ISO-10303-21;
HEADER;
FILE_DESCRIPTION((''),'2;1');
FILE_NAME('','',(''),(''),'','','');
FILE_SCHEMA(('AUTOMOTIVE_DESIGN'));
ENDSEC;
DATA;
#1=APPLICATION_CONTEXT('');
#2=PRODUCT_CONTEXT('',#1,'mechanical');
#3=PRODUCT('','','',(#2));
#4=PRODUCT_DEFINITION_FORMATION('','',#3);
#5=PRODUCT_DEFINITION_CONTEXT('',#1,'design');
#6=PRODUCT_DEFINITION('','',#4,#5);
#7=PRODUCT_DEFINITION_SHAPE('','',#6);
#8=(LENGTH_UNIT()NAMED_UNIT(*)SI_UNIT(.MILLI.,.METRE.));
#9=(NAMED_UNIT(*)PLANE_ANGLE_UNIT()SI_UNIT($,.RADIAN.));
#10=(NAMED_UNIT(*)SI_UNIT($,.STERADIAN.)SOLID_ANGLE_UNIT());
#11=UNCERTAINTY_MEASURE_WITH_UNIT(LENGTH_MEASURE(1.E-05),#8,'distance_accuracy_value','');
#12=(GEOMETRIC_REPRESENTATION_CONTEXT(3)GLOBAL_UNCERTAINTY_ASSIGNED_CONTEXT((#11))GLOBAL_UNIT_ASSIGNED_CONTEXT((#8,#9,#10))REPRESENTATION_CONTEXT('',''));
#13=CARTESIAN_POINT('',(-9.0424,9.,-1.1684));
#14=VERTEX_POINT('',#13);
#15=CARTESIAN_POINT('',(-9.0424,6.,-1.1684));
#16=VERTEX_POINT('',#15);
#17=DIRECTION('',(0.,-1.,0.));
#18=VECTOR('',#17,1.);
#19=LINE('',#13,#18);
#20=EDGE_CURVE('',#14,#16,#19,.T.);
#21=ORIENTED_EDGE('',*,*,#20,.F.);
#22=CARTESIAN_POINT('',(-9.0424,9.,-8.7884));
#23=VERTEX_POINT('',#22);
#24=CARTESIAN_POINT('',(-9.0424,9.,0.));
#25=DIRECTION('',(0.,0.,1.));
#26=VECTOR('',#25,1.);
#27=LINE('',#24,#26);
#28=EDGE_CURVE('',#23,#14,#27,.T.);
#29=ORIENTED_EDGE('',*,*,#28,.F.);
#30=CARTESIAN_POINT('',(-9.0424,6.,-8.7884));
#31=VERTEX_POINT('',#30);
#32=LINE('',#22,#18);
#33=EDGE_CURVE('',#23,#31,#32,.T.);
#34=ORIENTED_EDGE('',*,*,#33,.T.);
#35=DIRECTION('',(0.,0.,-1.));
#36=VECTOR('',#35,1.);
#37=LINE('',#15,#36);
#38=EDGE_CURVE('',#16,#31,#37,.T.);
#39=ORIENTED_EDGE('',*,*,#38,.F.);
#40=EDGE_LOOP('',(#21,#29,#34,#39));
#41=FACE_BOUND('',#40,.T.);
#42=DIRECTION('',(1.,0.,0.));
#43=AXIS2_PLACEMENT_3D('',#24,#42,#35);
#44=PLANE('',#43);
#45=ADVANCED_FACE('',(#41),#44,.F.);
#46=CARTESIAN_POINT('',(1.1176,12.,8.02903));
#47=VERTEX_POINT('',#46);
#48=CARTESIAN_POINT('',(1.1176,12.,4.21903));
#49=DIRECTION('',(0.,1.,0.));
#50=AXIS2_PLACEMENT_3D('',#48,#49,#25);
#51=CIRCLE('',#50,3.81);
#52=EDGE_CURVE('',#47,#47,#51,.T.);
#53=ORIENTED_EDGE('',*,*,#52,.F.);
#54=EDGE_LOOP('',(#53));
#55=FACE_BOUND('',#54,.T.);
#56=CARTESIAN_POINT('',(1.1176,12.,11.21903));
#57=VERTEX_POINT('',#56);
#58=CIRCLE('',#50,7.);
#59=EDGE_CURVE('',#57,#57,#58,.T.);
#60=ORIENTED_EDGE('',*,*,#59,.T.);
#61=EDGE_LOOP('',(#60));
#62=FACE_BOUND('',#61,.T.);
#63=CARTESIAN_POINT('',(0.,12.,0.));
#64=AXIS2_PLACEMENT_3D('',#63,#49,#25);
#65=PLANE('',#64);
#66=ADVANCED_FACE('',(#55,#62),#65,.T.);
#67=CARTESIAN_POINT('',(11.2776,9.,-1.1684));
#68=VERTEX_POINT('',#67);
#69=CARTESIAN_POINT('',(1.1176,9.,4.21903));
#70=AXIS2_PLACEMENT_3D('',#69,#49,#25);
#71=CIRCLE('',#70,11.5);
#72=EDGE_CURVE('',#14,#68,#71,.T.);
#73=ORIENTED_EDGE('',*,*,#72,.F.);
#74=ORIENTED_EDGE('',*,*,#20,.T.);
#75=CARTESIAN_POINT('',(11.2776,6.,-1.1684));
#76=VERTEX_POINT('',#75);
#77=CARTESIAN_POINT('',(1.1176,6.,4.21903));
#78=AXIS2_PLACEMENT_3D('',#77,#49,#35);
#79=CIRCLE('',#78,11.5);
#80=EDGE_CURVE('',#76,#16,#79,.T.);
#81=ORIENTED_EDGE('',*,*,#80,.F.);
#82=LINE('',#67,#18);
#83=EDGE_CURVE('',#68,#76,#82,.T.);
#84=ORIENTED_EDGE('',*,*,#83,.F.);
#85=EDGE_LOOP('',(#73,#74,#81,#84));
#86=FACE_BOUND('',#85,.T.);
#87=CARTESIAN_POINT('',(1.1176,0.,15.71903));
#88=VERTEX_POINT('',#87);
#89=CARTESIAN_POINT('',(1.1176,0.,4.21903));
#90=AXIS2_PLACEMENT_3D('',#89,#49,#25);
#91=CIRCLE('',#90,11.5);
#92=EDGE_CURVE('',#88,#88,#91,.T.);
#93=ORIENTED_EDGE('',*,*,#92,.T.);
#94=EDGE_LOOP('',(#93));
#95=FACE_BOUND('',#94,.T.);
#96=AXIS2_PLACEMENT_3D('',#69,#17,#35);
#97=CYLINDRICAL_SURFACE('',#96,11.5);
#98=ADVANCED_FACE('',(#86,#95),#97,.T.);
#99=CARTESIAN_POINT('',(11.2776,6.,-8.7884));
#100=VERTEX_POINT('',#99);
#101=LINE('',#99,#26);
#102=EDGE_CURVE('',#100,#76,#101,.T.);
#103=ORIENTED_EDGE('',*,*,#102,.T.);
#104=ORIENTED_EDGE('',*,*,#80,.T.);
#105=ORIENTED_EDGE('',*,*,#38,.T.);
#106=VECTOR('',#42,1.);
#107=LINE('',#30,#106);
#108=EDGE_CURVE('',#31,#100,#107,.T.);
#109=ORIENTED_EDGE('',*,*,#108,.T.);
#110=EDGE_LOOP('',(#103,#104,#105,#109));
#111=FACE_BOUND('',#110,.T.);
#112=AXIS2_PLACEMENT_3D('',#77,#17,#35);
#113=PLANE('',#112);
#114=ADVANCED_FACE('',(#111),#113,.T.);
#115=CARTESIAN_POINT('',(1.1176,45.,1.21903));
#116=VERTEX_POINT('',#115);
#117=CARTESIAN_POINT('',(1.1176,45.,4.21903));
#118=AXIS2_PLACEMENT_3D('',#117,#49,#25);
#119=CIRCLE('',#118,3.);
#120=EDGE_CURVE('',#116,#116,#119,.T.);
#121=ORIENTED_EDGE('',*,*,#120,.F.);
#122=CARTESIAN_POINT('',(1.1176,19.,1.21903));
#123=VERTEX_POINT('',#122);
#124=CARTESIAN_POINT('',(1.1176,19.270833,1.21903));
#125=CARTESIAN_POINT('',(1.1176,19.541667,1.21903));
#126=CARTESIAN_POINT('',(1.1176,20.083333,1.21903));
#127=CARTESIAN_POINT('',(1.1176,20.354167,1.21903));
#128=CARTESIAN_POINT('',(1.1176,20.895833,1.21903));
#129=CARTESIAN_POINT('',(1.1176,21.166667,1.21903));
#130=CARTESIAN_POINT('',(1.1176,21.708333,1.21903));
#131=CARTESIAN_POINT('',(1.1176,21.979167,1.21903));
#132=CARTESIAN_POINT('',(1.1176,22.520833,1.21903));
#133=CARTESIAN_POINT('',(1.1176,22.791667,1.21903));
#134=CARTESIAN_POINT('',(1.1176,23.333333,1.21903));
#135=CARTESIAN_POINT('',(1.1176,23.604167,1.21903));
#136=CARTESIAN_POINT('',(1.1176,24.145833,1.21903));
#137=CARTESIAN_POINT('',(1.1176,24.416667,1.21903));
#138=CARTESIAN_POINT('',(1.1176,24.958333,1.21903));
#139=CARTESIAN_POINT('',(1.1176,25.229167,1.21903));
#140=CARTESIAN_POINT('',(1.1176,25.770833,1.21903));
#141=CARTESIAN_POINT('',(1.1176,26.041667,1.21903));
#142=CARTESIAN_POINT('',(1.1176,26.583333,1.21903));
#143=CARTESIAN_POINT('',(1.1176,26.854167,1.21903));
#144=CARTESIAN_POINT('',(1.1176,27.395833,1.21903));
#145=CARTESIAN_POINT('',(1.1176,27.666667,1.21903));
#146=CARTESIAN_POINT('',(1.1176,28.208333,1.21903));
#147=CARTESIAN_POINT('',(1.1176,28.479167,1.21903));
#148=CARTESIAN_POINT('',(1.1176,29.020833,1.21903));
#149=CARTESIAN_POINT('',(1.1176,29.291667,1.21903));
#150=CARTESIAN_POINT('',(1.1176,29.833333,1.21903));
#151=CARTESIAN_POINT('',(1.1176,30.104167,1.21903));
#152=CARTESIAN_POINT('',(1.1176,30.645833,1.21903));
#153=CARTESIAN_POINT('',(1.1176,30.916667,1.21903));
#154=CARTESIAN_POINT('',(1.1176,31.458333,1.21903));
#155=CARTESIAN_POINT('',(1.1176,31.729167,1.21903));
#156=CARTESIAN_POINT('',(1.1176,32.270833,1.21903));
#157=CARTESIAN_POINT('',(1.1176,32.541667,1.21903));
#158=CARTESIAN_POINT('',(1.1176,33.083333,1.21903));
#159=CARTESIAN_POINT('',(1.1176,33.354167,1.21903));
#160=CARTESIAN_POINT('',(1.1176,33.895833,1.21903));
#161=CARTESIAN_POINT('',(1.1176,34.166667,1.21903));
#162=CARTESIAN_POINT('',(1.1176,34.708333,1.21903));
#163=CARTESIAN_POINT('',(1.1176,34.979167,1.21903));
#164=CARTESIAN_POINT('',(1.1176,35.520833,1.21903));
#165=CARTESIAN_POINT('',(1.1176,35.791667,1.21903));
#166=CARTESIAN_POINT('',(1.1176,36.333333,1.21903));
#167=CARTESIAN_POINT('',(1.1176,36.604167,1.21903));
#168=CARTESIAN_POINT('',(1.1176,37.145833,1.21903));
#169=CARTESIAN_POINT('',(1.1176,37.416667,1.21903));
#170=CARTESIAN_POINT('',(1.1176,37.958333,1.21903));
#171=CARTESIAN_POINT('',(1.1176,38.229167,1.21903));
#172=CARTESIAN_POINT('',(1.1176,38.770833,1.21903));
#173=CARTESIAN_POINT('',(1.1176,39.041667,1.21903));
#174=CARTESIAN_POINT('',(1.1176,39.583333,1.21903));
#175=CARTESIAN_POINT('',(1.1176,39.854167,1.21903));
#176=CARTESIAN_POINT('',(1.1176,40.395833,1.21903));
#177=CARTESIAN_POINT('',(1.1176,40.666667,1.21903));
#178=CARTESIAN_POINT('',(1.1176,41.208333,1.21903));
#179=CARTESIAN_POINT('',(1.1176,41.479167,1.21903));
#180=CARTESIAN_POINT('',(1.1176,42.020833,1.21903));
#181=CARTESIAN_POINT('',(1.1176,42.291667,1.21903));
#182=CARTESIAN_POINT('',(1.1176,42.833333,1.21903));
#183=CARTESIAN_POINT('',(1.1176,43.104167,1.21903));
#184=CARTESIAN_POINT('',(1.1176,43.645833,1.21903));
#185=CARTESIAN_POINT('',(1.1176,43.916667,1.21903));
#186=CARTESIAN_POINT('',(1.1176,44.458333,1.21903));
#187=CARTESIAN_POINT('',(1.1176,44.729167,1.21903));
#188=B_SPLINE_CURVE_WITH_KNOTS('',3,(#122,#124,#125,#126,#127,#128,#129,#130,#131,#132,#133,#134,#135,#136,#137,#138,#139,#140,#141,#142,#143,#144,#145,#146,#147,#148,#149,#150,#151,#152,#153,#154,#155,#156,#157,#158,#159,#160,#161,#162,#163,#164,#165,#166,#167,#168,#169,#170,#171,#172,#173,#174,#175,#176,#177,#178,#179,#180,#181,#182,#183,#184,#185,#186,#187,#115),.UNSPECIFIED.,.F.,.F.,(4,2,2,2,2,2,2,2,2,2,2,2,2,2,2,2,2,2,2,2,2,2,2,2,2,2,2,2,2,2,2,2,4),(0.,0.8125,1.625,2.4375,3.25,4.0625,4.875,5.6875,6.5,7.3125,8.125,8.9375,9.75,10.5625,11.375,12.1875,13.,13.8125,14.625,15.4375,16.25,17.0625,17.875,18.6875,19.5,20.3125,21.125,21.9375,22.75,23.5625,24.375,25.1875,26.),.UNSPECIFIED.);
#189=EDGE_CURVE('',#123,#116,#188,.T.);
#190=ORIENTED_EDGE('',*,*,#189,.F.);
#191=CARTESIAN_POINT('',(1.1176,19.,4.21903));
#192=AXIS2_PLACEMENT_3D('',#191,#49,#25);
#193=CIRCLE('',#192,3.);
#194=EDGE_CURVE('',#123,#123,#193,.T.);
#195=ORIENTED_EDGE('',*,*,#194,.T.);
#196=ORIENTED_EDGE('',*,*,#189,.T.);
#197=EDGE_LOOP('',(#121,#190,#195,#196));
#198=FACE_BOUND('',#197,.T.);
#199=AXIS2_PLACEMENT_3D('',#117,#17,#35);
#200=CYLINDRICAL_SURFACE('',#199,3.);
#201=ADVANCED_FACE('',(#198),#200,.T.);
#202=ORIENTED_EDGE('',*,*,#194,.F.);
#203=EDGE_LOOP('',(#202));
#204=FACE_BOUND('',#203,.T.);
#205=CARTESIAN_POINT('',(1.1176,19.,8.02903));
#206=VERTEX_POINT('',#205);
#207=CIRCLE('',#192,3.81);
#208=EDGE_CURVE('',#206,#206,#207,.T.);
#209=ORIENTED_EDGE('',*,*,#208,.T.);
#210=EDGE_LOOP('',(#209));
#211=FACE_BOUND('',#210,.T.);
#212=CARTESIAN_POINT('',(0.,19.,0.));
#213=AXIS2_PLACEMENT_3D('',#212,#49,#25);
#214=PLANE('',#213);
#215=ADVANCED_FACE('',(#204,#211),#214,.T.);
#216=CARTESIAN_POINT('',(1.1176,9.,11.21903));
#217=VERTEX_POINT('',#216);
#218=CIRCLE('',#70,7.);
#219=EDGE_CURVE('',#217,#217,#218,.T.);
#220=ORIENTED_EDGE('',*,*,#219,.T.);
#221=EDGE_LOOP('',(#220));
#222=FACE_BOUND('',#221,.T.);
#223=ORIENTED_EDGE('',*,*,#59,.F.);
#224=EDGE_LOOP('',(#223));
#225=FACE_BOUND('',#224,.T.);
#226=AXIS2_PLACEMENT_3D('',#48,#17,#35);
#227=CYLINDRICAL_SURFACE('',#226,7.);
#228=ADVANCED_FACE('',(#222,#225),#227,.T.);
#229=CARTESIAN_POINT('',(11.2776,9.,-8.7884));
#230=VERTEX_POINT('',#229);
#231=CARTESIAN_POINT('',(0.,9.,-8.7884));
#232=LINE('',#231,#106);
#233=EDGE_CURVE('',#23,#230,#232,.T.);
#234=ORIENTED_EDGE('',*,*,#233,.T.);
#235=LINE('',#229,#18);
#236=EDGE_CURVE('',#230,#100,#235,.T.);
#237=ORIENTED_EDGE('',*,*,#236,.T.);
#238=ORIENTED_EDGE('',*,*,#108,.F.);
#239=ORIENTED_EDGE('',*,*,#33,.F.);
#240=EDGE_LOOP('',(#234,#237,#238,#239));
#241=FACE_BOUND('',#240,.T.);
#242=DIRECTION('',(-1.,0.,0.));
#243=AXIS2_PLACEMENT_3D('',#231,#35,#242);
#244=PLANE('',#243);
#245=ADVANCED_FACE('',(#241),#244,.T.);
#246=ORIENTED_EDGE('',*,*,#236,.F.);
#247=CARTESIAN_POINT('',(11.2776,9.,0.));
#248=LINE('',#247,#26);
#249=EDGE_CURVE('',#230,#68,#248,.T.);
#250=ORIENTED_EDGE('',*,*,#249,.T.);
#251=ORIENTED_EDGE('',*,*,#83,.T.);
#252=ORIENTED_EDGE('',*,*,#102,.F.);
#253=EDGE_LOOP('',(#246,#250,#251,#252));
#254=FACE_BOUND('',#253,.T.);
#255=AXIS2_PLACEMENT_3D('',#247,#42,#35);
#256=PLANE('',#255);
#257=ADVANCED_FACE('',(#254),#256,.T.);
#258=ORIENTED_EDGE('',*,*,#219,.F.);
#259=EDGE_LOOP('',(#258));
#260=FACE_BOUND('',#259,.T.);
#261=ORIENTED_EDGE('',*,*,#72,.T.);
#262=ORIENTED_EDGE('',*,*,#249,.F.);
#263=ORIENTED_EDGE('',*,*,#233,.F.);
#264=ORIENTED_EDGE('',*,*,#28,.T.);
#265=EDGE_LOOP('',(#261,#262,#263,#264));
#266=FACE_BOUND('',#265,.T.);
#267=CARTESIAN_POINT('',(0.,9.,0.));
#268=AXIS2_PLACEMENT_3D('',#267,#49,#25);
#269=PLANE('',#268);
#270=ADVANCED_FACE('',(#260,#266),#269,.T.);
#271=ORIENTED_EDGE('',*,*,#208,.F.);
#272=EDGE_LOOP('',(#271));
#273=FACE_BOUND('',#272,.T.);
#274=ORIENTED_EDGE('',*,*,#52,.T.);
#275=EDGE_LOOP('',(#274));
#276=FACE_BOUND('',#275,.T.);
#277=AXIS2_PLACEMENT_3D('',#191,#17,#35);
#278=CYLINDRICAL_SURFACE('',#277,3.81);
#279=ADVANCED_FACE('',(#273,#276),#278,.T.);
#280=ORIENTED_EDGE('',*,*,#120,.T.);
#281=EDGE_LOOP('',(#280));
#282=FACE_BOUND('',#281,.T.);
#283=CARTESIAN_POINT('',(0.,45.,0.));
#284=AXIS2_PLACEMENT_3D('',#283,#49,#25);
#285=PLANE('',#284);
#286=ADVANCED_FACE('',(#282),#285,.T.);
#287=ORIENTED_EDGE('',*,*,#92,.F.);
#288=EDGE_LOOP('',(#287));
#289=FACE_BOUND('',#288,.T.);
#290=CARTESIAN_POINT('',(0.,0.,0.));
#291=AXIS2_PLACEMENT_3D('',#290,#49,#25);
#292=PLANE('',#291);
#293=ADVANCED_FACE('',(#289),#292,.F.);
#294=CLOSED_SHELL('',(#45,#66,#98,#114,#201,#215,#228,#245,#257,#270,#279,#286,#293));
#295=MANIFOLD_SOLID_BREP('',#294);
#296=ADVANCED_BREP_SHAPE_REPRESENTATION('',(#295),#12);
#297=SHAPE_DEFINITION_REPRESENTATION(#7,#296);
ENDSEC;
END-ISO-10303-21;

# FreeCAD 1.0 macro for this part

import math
import FreeCAD as App
import Part
import Sketcher

doc = App.newDocument("Part")
body = doc.addObject("PartDesign::Body", "Body")

# Sketch on XZ plane
sketch1 = body.newObject("Sketcher::SketchObject", "Sketch")
sketch1.AttachmentSupport = (doc.getObject("XZ_Plane"), [""])
sketch1.MapMode = "FlatFace"
sketch1.addGeometry([
    Part.LineSegment(App.Vector(-9, -9, 0), App.Vector(-9, -1, 0)),  # 0
    Part.ArcOfCircle(Part.Circle(App.Vector(1, 4, 0), App.Vector(0, 0, 1), 12), math.radians(90), math.radians(208)),  # 1
    Part.ArcOfCircle(Part.Circle(App.Vector(1, 4, 0), App.Vector(0, 0, 1), 12), math.radians(-28), math.radians(90)),  # 2
    Part.LineSegment(App.Vector(11, -1, 0), App.Vector(11, -9, 0)),  # 3
    Part.LineSegment(App.Vector(11, -9, 0), App.Vector(-9, -9, 0)),  # 4
    Part.ArcOfCircle(Part.Circle(App.Vector(1, 4, 0), App.Vector(0, 0, 1), 7), math.radians(90), math.radians(270)),  # 5
    Part.ArcOfCircle(Part.Circle(App.Vector(1, 4, 0), App.Vector(0, 0, 1), 7), math.radians(-90), math.radians(0)),  # 6
    Part.ArcOfCircle(Part.Circle(App.Vector(1, 4, 0), App.Vector(0, 0, 1), 7), math.radians(0), math.radians(90)),  # 7
], False)
sketch1.addConstraint([
    Sketcher.Constraint("Coincident", 0, 2, 1, 2),
    Sketcher.Constraint("Tangent", 1, 1, 2, 2),
    Sketcher.Constraint("Coincident", 2, 1, 3, 1),
    Sketcher.Constraint("Coincident", 3, 2, 4, 1),
    Sketcher.Constraint("Coincident", 4, 2, 0, 1),
    Sketcher.Constraint("Tangent", 5, 2, 6, 1),
    Sketcher.Constraint("Tangent", 6, 2, 7, 1),
    Sketcher.Constraint("Tangent", 7, 2, 5, 1),
    Sketcher.Constraint("Vertical", 0),
    Sketcher.Constraint("Vertical", 3),
    Sketcher.Constraint("Horizontal", 4),
    Sketcher.Constraint("Coincident", 5, 3, 1, 3),
    Sketcher.Constraint("Equal", 1, 2),
    Sketcher.Constraint("Horizontal", 0, 2, 2, 1),
    Sketcher.Constraint("Horizontal", 7, 3, 6, 2),
    Sketcher.Constraint("Vertical", 7, 3, 1, 1),
    Sketcher.Constraint("Vertical", 1, 1, 5, 2),
    Sketcher.Constraint("Vertical", 5, 2, 7, 2),
    Sketcher.Constraint("Radius", 5, 7.0),
    Sketcher.Constraint("Radius", 1, 11.5),
    Sketcher.Constraint("DistanceX", 4, 2, 4, 1, 20.32),
    Sketcher.Constraint("DistanceY", 0, 1, 0, 2, 7.62),
    Sketcher.Constraint("DistanceX", -1, 1, 1, 3, 1.1176),
    Sketcher.Constraint("DistanceY", 0, 2, -1, 1, 1.1684),
])
pad1 = body.newObject("PartDesign::Pad", "Pad")
pad1.Profile = sketch1
pad1.Length = 9
pad1.Reversed = True

# Sketch on XZ plane
sketch2 = body.newObject("Sketcher::SketchObject", "Sketch001")
sketch2.AttachmentSupport = (doc.getObject("XZ_Plane"), [""])
sketch2.MapMode = "FlatFace"
sketch2.addGeometry([
    Part.ArcOfCircle(Part.Circle(App.Vector(1.1, 4.2, 0), App.Vector(0, 0, 1), 7), math.radians(-90), math.radians(0)),  # 0
    Part.ArcOfCircle(Part.Circle(App.Vector(1.1, 4.2, 0), App.Vector(0, 0, 1), 7), math.radians(90), math.radians(270)),  # 1
    Part.ArcOfCircle(Part.Circle(App.Vector(1.1, 4.2, 0), App.Vector(0, 0, 1), 7), math.radians(0), math.radians(90)),  # 2
    Part.ArcOfCircle(Part.Circle(App.Vector(1.1, 4.2, 0), App.Vector(0, 0, 1), 3.8), math.radians(0), math.radians(90)),  # 3
    Part.ArcOfCircle(Part.Circle(App.Vector(1.1, 4.2, 0), App.Vector(0, 0, 1), 3.8), math.radians(90), math.radians(270)),  # 4
    Part.ArcOfCircle(Part.Circle(App.Vector(1.1, 4.2, 0), App.Vector(0, 0, 1), 3.8), math.radians(-90), math.radians(0)),  # 5
], False)
sketch2.addConstraint([
    Sketcher.Constraint("Tangent", 0, 1, 1, 2),
    Sketcher.Constraint("Tangent", 1, 1, 2, 2),
    Sketcher.Constraint("Tangent", 2, 1, 0, 2),
    Sketcher.Constraint("Tangent", 3, 2, 4, 1),
    Sketcher.Constraint("Tangent", 4, 2, 5, 1),
    Sketcher.Constraint("Tangent", 5, 2, 3, 1),
    Sketcher.Constraint("Coincident", 3, 3, 0, 3),
    Sketcher.Constraint("Horizontal", 5, 3, 2, 1),
    Sketcher.Constraint("Horizontal", 2, 1, 5, 2),
    Sketcher.Constraint("Vertical", 5, 3, 0, 1),
    Sketcher.Constraint("Vertical", 0, 1, 1, 1),
    Sketcher.Constraint("Vertical", 1, 1, 3, 2),
    Sketcher.Constraint("Vertical", 3, 2, 4, 2),
    Sketcher.Constraint("Radius", 0, 7.0),
    Sketcher.Constraint("Radius", 3, 3.81),
    Sketcher.Constraint("DistanceX", -1, 1, 0, 3, 1.1176),
    Sketcher.Constraint("DistanceY", -1, 1, 0, 3, 4.21903),
])
pad2 = body.newObject("PartDesign::Pad", "Pad001")
pad2.Profile = sketch2
pad2.Length = 12
pad2.Reversed = True

# Sketch on XZ plane
sketch3 = body.newObject("Sketcher::SketchObject", "Sketch002")
sketch3.AttachmentSupport = (doc.getObject("XZ_Plane"), [""])
sketch3.MapMode = "FlatFace"
sketch3.addGeometry([
    Part.ArcOfCircle(Part.Circle(App.Vector(1.1, 4.2, 0), App.Vector(0, 0, 1), 3.8), math.radians(-90), math.radians(0)),  # 0
    Part.ArcOfCircle(Part.Circle(App.Vector(1.1, 4.2, 0), App.Vector(0, 0, 1), 3.8), math.radians(90), math.radians(270)),  # 1
    Part.ArcOfCircle(Part.Circle(App.Vector(1.1, 4.2, 0), App.Vector(0, 0, 1), 3.8), math.radians(0), math.radians(90)),  # 2
    Part.ArcOfCircle(Part.Circle(App.Vector(1.1, 4.2, 0), App.Vector(0, 0, 1), 3), math.radians(0), math.radians(90)),  # 3
    Part.ArcOfCircle(Part.Circle(App.Vector(1.1, 4.2, 0), App.Vector(0, 0, 1), 3), math.radians(90), math.radians(270)),  # 4
    Part.ArcOfCircle(Part.Circle(App.Vector(1.1, 4.2, 0), App.Vector(0, 0, 1), 3), math.radians(-90), math.radians(0)),  # 5
], False)
sketch3.addConstraint([
    Sketcher.Constraint("Tangent", 0, 1, 1, 2),
    Sketcher.Constraint("Tangent", 1, 1, 2, 2),
    Sketcher.Constraint("Tangent", 2, 1, 0, 2),
    Sketcher.Constraint("Tangent", 3, 2, 4, 1),
    Sketcher.Constraint("Tangent", 4, 2, 5, 1),
    Sketcher.Constraint("Tangent", 5, 2, 3, 1),
    Sketcher.Constraint("Coincident", 3, 3, 0, 3),
    Sketcher.Constraint("Horizontal", 5, 3, 2, 1),
    Sketcher.Constraint("Horizontal", 2, 1, 5, 2),
    Sketcher.Constraint("Vertical", 5, 3, 0, 1),
    Sketcher.Constraint("Vertical", 0, 1, 1, 1),
    Sketcher.Constraint("Vertical", 1, 1, 3, 2),
    Sketcher.Constraint("Vertical", 3, 2, 4, 2),
    Sketcher.Constraint("Radius", 3, 3.0),
    Sketcher.Constraint("Radius", 0, 3.81),
    Sketcher.Constraint("DistanceX", -1, 1, 0, 3, 1.1176),
    Sketcher.Constraint("DistanceY", -1, 1, 0, 3, 4.21903),
])
pad3 = body.newObject("PartDesign::Pad", "Pad002")
pad3.Profile = sketch3
pad3.Length = 19
pad3.Reversed = True

# Sketch on XZ plane
sketch4 = body.newObject("Sketcher::SketchObject", "Sketch003")
sketch4.AttachmentSupport = (doc.getObject("XZ_Plane"), [""])
sketch4.MapMode = "FlatFace"
sketch4.addGeometry([
    Part.ArcOfCircle(Part.Circle(App.Vector(1.1, 4.2, 0), App.Vector(0, 0, 1), 3), math.radians(-90), math.radians(0)),
    Part.ArcOfCircle(Part.Circle(App.Vector(1.1, 4.2, 0), App.Vector(0, 0, 1), 3), math.radians(90), math.radians(270)),
    Part.ArcOfCircle(Part.Circle(App.Vector(1.1, 4.2, 0), App.Vector(0, 0, 1), 3), math.radians(0), math.radians(90)),
], False)
sketch4.addConstraint([
    Sketcher.Constraint("Tangent", 0, 1, 1, 2),
    Sketcher.Constraint("Tangent", 1, 1, 2, 2),
    Sketcher.Constraint("Tangent", 2, 1, 0, 2),
    Sketcher.Constraint("Horizontal", 1, 3, 2, 1),
    Sketcher.Constraint("Vertical", 2, 3, 0, 1),
    Sketcher.Constraint("Vertical", 0, 1, 1, 1),
    Sketcher.Constraint("Radius", 0, 3.0),
    Sketcher.Constraint("DistanceX", -1, 1, 0, 3, 1.1176),
    Sketcher.Constraint("DistanceY", -1, 1, 0, 3, 4.21903),
])
pad4 = body.newObject("PartDesign::Pad", "Pad003")
pad4.Profile = sketch4
pad4.Length = 45
pad4.Reversed = True

# Sketch on XZ plane
sketch5 = body.newObject("Sketcher::SketchObject", "Sketch004")
sketch5.AttachmentSupport = (doc.getObject("XZ_Plane"), [""])
sketch5.MapMode = "FlatFace"
sketch5.addGeometry([
    Part.LineSegment(App.Vector(-9, -1, 0), App.Vector(-9, -9, 0)),
    Part.LineSegment(App.Vector(-9, -9, 0), App.Vector(11, -9, 0)),
    Part.LineSegment(App.Vector(11, -9, 0), App.Vector(11, -1, 0)),
    Part.ArcOfCircle(Part.Circle(App.Vector(1, 4, 0), App.Vector(0, 0, 1), 12), math.radians(-152), math.radians(-28)),
], False)
sketch5.addConstraint([
    Sketcher.Constraint("Coincident", 0, 2, 1, 1),
    Sketcher.Constraint("Coincident", 1, 2, 2, 1),
    Sketcher.Constraint("Coincident", 2, 2, 3, 2),
    Sketcher.Constraint("Coincident", 3, 1, 0, 1),
    Sketcher.Constraint("Vertical", 0),
    Sketcher.Constraint("Horizontal", 1),
    Sketcher.Constraint("Vertical", 2),
    Sketcher.Constraint("Horizontal", 2, 2, 3, 1),
    Sketcher.Constraint("Radius", 3, 11.5),
    Sketcher.Constraint("DistanceX", 1, 1, 1, 2, 20.32),
    Sketcher.Constraint("DistanceY", 0, 2, 0, 1, 7.62),
    Sketcher.Constraint("DistanceX", -1, 1, 3, 3, 1.1176),
    Sketcher.Constraint("DistanceY", 0, 2, -1, 1, 8.7884),
])
pocket1 = body.newObject("PartDesign::Pocket", "Pocket")
pocket1.Profile = sketch5
pocket1.Length = 6

doc.recompute()
